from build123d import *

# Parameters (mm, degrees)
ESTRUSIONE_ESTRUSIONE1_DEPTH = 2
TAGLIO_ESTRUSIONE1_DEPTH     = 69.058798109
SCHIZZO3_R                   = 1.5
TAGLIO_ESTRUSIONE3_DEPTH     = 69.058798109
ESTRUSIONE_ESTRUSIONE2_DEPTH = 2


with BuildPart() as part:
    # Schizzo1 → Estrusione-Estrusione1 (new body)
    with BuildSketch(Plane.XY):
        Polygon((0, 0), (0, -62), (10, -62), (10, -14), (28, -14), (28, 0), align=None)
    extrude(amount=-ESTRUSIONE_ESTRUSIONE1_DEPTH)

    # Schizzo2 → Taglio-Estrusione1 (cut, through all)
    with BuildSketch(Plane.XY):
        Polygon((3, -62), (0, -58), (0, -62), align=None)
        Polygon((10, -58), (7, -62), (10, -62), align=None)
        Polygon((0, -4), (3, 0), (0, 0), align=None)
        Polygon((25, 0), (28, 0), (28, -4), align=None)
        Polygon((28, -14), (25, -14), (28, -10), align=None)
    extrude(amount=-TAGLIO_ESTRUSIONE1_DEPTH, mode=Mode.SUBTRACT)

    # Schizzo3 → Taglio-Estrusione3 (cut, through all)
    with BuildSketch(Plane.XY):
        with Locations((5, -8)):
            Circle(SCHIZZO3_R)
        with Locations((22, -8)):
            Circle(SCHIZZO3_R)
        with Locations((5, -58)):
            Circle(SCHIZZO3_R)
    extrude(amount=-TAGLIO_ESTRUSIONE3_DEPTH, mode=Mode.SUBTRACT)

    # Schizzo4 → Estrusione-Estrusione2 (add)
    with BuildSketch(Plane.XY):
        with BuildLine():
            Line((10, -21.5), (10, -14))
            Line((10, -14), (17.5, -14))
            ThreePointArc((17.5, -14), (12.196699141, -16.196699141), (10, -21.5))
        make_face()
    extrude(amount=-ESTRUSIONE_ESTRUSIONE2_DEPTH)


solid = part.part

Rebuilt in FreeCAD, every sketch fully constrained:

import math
import FreeCAD as App
import Part
import Sketcher


def add_polygon(sketch, points):
    """Adds a closed chain of lines whose ends are joined by coincident constraints."""
    first, n = sketch.GeometryCount, len(points)
    for a, b in zip(points, points[1:] + points[:1]):
        sketch.addGeometry(Part.LineSegment(App.Vector(*a, 0), App.Vector(*b, 0)), False)
    for i in range(n):
        sketch.addConstraint(Sketcher.Constraint("Coincident", first + i, 2, first + (i + 1) % n, 1))

doc = App.newDocument("Part")
body = doc.addObject("PartDesign::Body", "Body")

# Sketch on XY plane
sketch1 = doc.addObject("Sketcher::SketchObject", "Sketch")
body.addObject(sketch1)
sketch1.AttachmentSupport = (doc.XY_Plane, [""])
sketch1.MapMode = "FlatFace"
add_polygon(sketch1, [(0, 0), (0, -62), (10, -62), (10, -14), (28, -14), (28, 0)])  # lines 0-5
sketch1.addConstraint([
    Sketcher.Constraint("Vertical", 0),
    Sketcher.Constraint("Horizontal", 1),
    Sketcher.Constraint("Vertical", 2),
    Sketcher.Constraint("Horizontal", 3),
    Sketcher.Constraint("Vertical", 4),
    Sketcher.Constraint("Horizontal", 5),
    Sketcher.Constraint("Coincident", 5, 2, -1, 1),
    Sketcher.Constraint("DistanceX", 1, 1, 1, 2, 10.0),
    Sketcher.Constraint("DistanceX", 3, 1, 3, 2, 18.0),
    Sketcher.Constraint("DistanceY", 0, 2, 0, 1, 62.0),
    Sketcher.Constraint("DistanceY", 2, 1, 2, 2, 48.0),
])
pad1 = doc.addObject("PartDesign::Pad", "Pad")
body.addObject(pad1)
pad1.Profile = sketch1
pad1.Length = 2
pad1.Reversed = True

# Sketch on XY plane
sketch2 = doc.addObject("Sketcher::SketchObject", "Sketch001")
body.addObject(sketch2)
sketch2.AttachmentSupport = (doc.XY_Plane, [""])
sketch2.MapMode = "FlatFace"
add_polygon(sketch2, [(3, -62), (0, -58), (0, -62)])  # lines 0-2
add_polygon(sketch2, [(10, -58), (7, -62), (10, -62)])  # lines 3-5
add_polygon(sketch2, [(0, -4), (3, 0), (0, 0)])  # lines 6-8
add_polygon(sketch2, [(28, 0), (25, 0), (28, -4)])  # lines 9-11
add_polygon(sketch2, [(25, -14), (28, -14), (28, -10)])  # lines 12-14
sketch2.addConstraint([
    Sketcher.Constraint("Vertical", 1),
    Sketcher.Constraint("Horizontal", 2),
    Sketcher.Constraint("Horizontal", 4),
    Sketcher.Constraint("Vertical", 5),
    Sketcher.Constraint("Horizontal", 7),
    Sketcher.Constraint("Vertical", 8),
    Sketcher.Constraint("Horizontal", 9),
    Sketcher.Constraint("Vertical", 11),
    Sketcher.Constraint("Horizontal", 12),
    Sketcher.Constraint("Vertical", 13),
    Sketcher.Constraint("Coincident", 7, 2, -1, 1),
    Sketcher.Constraint("PointOnObject", 0, 2, -2),
    Sketcher.Constraint("PointOnObject", 9, 2, -1),
    Sketcher.Constraint("Parallel", 3, 6),
    Sketcher.Constraint("Parallel", 0, 10),
    Sketcher.Constraint("Parallel", 6, 14),
    Sketcher.Constraint("Horizontal", 2, 2, 3, 2),
    Sketcher.Constraint("Horizontal", 0, 2, 5, 2),
    Sketcher.Constraint("Horizontal", 8, 2, 10, 2),
    Sketcher.Constraint("Vertical", 2, 2, 6, 2),
    Sketcher.Constraint("Vertical", 11, 2, 12, 2),
    Sketcher.Constraint("Vertical", 9, 2, 14, 2),
    Sketcher.Constraint("Equal", 2, 4),
    Sketcher.Constraint("DistanceX", 2, 1, 2, 2, 3.0),
    Sketcher.Constraint("DistanceY", 1, 2, 1, 1, 4.0),
    Sketcher.Constraint("DistanceY", 0, 2, -1, 1, 58.0),
    Sketcher.Constraint("DistanceX", -1, 1, 3, 2, 7.0),
    Sketcher.Constraint("DistanceX", -1, 1, 9, 2, 25.0),
    Sketcher.Constraint("DistanceY", 12, 2, -1, 1, 14.0),
])
pocket1 = doc.addObject("PartDesign::Pocket", "Pocket")
body.addObject(pocket1)
pocket1.Profile = sketch2
pocket1.Type = "ThroughAll"

# Sketch on XY plane
sketch3 = doc.addObject("Sketcher::SketchObject", "Sketch002")
body.addObject(sketch3)
sketch3.AttachmentSupport = (doc.XY_Plane, [""])
sketch3.MapMode = "FlatFace"
sketch3.addGeometry([
    Part.Circle(App.Vector(5, -8, 0), App.Vector(0, 0, 1), 1.5),
    Part.Circle(App.Vector(22, -8, 0), App.Vector(0, 0, 1), 1.5),
    Part.Circle(App.Vector(5, -58, 0), App.Vector(0, 0, 1), 1.5),
], False)
sketch3.addConstraint([
    Sketcher.Constraint("Equal", 0, 1),
    Sketcher.Constraint("Equal", 1, 2),
    Sketcher.Constraint("Horizontal", 0, 3, 1, 3),
    Sketcher.Constraint("Vertical", 0, 3, 2, 3),
    Sketcher.Constraint("Diameter", 0, 3.0),
    Sketcher.Constraint("DistanceX", -1, 1, 0, 3, 5.0),
    Sketcher.Constraint("DistanceY", 0, 3, -1, 1, 8.0),
    Sketcher.Constraint("DistanceX", -1, 1, 1, 3, 22.0),
    Sketcher.Constraint("DistanceY", 2, 3, -1, 1, 58.0),
])
pocket2 = doc.addObject("PartDesign::Pocket", "Pocket001")
body.addObject(pocket2)
pocket2.Profile = sketch3
pocket2.Type = "ThroughAll"

# Sketch on XY plane
sketch4 = doc.addObject("Sketcher::SketchObject", "Sketch003")
body.addObject(sketch4)
sketch4.AttachmentSupport = (doc.XY_Plane, [""])
sketch4.MapMode = "FlatFace"
sketch4.addGeometry([
    Part.LineSegment(App.Vector(10, -14, 0), App.Vector(10, -22, 0)),
    Part.ArcOfCircle(Part.Circle(App.Vector(18, -22, 0), App.Vector(0, 0, 1), 8), math.radians(90), math.radians(180)),
    Part.LineSegment(App.Vector(18, -14, 0), App.Vector(10, -14, 0)),
], False)
sketch4.addConstraint([
    Sketcher.Constraint("Tangent", 0, 2, 1, 2),
    Sketcher.Constraint("Tangent", 1, 1, 2, 1),
    Sketcher.Constraint("Coincident", 2, 2, 0, 1),
    Sketcher.Constraint("Vertical", 0),
    Sketcher.Constraint("Horizontal", 2),
    Sketcher.Constraint("Radius", 1, 7.5),
    Sketcher.Constraint("DistanceX", -1, 1, 0, 2, 10.0),
    Sketcher.Constraint("DistanceY", 1, 1, -1, 1, 14.0),
])
pad2 = doc.addObject("PartDesign::Pad", "Pad001")
body.addObject(pad2)
pad2.Profile = sketch4
pad2.Length = 2
pad2.Reversed = True

doc.recompute()
